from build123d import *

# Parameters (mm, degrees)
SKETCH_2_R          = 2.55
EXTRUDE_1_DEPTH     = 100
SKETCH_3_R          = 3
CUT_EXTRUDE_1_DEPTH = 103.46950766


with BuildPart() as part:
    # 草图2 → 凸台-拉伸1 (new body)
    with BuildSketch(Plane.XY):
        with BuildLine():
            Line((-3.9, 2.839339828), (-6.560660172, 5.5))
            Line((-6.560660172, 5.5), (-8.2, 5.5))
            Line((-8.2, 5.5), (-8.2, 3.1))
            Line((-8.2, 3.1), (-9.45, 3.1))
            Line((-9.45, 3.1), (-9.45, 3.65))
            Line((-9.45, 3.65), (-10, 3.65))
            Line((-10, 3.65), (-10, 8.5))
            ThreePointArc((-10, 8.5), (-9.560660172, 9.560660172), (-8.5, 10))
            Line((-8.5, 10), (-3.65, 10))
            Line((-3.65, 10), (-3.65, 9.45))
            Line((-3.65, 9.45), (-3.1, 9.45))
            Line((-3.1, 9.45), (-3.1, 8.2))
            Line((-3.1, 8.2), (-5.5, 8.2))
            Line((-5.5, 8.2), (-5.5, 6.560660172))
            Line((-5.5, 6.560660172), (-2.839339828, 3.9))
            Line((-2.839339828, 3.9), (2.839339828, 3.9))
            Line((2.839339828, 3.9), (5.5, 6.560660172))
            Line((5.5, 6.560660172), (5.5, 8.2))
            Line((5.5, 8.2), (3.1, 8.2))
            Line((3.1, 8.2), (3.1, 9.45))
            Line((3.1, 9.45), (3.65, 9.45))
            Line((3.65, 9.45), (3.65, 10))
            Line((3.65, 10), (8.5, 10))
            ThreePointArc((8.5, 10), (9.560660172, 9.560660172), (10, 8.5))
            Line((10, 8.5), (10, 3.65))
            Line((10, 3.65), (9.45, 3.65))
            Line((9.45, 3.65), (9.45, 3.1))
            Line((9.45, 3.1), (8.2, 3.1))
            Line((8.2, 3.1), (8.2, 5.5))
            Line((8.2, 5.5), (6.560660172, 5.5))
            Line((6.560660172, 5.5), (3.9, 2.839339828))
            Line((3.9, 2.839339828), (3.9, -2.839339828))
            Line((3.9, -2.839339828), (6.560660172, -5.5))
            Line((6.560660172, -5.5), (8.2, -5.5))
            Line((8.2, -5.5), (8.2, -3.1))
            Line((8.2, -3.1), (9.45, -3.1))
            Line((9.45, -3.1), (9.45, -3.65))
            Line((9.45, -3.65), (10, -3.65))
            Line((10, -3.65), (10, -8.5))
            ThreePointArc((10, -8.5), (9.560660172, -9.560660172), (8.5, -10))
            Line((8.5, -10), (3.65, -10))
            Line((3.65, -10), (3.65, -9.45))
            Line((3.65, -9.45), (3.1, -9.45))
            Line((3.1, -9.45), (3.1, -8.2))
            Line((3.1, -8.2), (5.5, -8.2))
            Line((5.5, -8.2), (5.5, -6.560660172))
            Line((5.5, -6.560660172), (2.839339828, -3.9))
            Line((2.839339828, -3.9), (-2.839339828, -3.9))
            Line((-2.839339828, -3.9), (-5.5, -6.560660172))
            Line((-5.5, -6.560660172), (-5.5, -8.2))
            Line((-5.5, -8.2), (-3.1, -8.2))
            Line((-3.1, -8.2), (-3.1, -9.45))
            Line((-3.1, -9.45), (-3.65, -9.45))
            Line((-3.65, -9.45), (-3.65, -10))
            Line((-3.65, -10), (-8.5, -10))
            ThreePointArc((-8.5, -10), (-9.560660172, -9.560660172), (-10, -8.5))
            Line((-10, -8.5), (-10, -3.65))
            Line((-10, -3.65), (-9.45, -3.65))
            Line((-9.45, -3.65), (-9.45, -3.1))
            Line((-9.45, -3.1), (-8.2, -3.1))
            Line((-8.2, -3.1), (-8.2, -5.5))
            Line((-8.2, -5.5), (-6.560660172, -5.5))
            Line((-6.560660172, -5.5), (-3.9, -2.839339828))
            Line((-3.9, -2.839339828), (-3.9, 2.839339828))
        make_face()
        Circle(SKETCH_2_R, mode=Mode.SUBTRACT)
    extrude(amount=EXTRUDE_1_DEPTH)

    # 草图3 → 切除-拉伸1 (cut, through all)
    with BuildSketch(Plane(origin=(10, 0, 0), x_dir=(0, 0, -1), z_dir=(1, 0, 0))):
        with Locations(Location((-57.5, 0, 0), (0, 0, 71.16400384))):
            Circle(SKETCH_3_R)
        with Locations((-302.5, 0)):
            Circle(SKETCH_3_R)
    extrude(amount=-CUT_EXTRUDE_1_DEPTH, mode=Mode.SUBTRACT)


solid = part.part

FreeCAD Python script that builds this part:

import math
import FreeCAD as App
import Part
import Sketcher

V = App.Vector
Q = App.Units.Quantity

doc = App.newDocument("Part")
body = doc.addObject("PartDesign::Body", "Body")

# Sketch on XY plane
sketch1 = body.newObject("Sketcher::SketchObject", "Sketch")
sketch1.AttachmentSupport = (doc.getObject("XY_Plane"), [""])
sketch1.MapMode = "FlatFace"
sketch1.addGeometry(Part.LineSegment(V(-6.6, 5.5, 0), V(-3.9, 2.8, 0)), False)
sketch1.addGeometry(Part.LineSegment(V(-3.9, 2.8, 0), V(-3.9, -2.8, 0)), False)
sketch1.addGeometry(Part.LineSegment(V(-3.9, -2.8, 0), V(-6.6, -5.5, 0)), False)
sketch1.addGeometry(Part.LineSegment(V(-6.6, -5.5, 0), V(-8.2, -5.5, 0)), False)
sketch1.addGeometry(Part.LineSegment(V(-8.2, -5.5, 0), V(-8.2, -3.1, 0)), False)
sketch1.addGeometry(Part.LineSegment(V(-8.2, -3.1, 0), V(-9.4, -3.1, 0)), False)
sketch1.addGeometry(Part.LineSegment(V(-9.4, -3.1, 0), V(-9.4, -3.6, 0)), False)
sketch1.addGeometry(Part.LineSegment(V(-9.4, -3.6, 0), V(-10, -3.6, 0)), False)
sketch1.addGeometry(Part.LineSegment(V(-10, -3.6, 0), V(-10, -8.5, 0)), False)
sketch1.addGeometry(Part.ArcOfCircle(Part.Circle(V(-8.5, -8.5, 0), V(0, 0, 1), 1.5), math.radians(180), math.radians(270)), False)
sketch1.addGeometry(Part.LineSegment(V(-8.5, -10, 0), V(-3.6, -10, 0)), False)
sketch1.addGeometry(Part.LineSegment(V(-3.6, -10, 0), V(-3.6, -9.4, 0)), False)
sketch1.addGeometry(Part.LineSegment(V(-3.6, -9.4, 0), V(-3.1, -9.4, 0)), False)
sketch1.addGeometry(Part.LineSegment(V(-3.1, -9.4, 0), V(-3.1, -8.2, 0)), False)
sketch1.addGeometry(Part.LineSegment(V(-3.1, -8.2, 0), V(-5.5, -8.2, 0)), False)
sketch1.addGeometry(Part.LineSegment(V(-5.5, -8.2, 0), V(-5.5, -6.6, 0)), False)
sketch1.addGeometry(Part.LineSegment(V(-5.5, -6.6, 0), V(-2.8, -3.9, 0)), False)
sketch1.addGeometry(Part.LineSegment(V(-2.8, -3.9, 0), V(2.8, -3.9, 0)), False)
sketch1.addGeometry(Part.LineSegment(V(2.8, -3.9, 0), V(5.5, -6.6, 0)), False)
sketch1.addGeometry(Part.LineSegment(V(5.5, -6.6, 0), V(5.5, -8.2, 0)), False)
sketch1.addGeometry(Part.LineSegment(V(5.5, -8.2, 0), V(3.1, -8.2, 0)), False)
sketch1.addGeometry(Part.LineSegment(V(3.1, -8.2, 0), V(3.1, -9.4, 0)), False)
sketch1.addGeometry(Part.LineSegment(V(3.1, -9.4, 0), V(3.6, -9.4, 0)), False)
sketch1.addGeometry(Part.LineSegment(V(3.6, -9.4, 0), V(3.6, -10, 0)), False)
sketch1.addGeometry(Part.LineSegment(V(3.6, -10, 0), V(8.5, -10, 0)), False)
sketch1.addGeometry(Part.ArcOfCircle(Part.Circle(V(8.5, -8.5, 0), V(0, 0, 1), 1.5), math.radians(-90), math.radians(0)), False)
sketch1.addGeometry(Part.LineSegment(V(10, -8.5, 0), V(10, -3.6, 0)), False)
sketch1.addGeometry(Part.LineSegment(V(10, -3.6, 0), V(9.4, -3.6, 0)), False)
sketch1.addGeometry(Part.LineSegment(V(9.4, -3.6, 0), V(9.4, -3.1, 0)), False)
sketch1.addGeometry(Part.LineSegment(V(9.4, -3.1, 0), V(8.2, -3.1, 0)), False)
sketch1.addGeometry(Part.LineSegment(V(8.2, -3.1, 0), V(8.2, -5.5, 0)), False)
sketch1.addGeometry(Part.LineSegment(V(8.2, -5.5, 0), V(6.6, -5.5, 0)), False)
sketch1.addGeometry(Part.LineSegment(V(6.6, -5.5, 0), V(3.9, -2.8, 0)), False)
sketch1.addGeometry(Part.LineSegment(V(3.9, -2.8, 0), V(3.9, 2.8, 0)), False)
sketch1.addGeometry(Part.LineSegment(V(3.9, 2.8, 0), V(6.6, 5.5, 0)), False)
sketch1.addGeometry(Part.LineSegment(V(6.6, 5.5, 0), V(8.2, 5.5, 0)), False)
sketch1.addGeometry(Part.LineSegment(V(8.2, 5.5, 0), V(8.2, 3.1, 0)), False)
sketch1.addGeometry(Part.LineSegment(V(8.2, 3.1, 0), V(9.4, 3.1, 0)), False)
sketch1.addGeometry(Part.LineSegment(V(9.4, 3.1, 0), V(9.4, 3.6, 0)), False)
sketch1.addGeometry(Part.LineSegment(V(9.4, 3.6, 0), V(10, 3.6, 0)), False)
sketch1.addGeometry(Part.LineSegment(V(10, 3.6, 0), V(10, 8.5, 0)), False)
sketch1.addGeometry(Part.ArcOfCircle(Part.Circle(V(8.5, 8.5, 0), V(0, 0, 1), 1.5), math.radians(0), math.radians(90)), False)
sketch1.addGeometry(Part.LineSegment(V(8.5, 10, 0), V(3.6, 10, 0)), False)
sketch1.addGeometry(Part.LineSegment(V(3.6, 10, 0), V(3.6, 9.4, 0)), False)
sketch1.addGeometry(Part.LineSegment(V(3.6, 9.4, 0), V(3.1, 9.4, 0)), False)
sketch1.addGeometry(Part.LineSegment(V(3.1, 9.4, 0), V(3.1, 8.2, 0)), False)
sketch1.addGeometry(Part.LineSegment(V(3.1, 8.2, 0), V(5.5, 8.2, 0)), False)
sketch1.addGeometry(Part.LineSegment(V(5.5, 8.2, 0), V(5.5, 6.6, 0)), False)
sketch1.addGeometry(Part.LineSegment(V(5.5, 6.6, 0), V(2.8, 3.9, 0)), False)
sketch1.addGeometry(Part.LineSegment(V(2.8, 3.9, 0), V(-2.8, 3.9, 0)), False)
sketch1.addGeometry(Part.LineSegment(V(-2.8, 3.9, 0), V(-5.5, 6.6, 0)), False)
sketch1.addGeometry(Part.LineSegment(V(-5.5, 6.6, 0), V(-5.5, 8.2, 0)), False)
sketch1.addGeometry(Part.LineSegment(V(-5.5, 8.2, 0), V(-3.1, 8.2, 0)), False)
sketch1.addGeometry(Part.LineSegment(V(-3.1, 8.2, 0), V(-3.1, 9.4, 0)), False)
sketch1.addGeometry(Part.LineSegment(V(-3.1, 9.4, 0), V(-3.6, 9.4, 0)), False)
sketch1.addGeometry(Part.LineSegment(V(-3.6, 9.4, 0), V(-3.6, 10, 0)), False)
sketch1.addGeometry(Part.LineSegment(V(-3.6, 10, 0), V(-8.5, 10, 0)), False)
sketch1.addGeometry(Part.ArcOfCircle(Part.Circle(V(-8.5, 8.5, 0), V(0, 0, 1), 1.5), math.radians(90), math.radians(180)), False)
sketch1.addGeometry(Part.LineSegment(V(-10, 8.5, 0), V(-10, 3.6, 0)), False)
sketch1.addGeometry(Part.LineSegment(V(-10, 3.6, 0), V(-9.4, 3.6, 0)), False)
sketch1.addGeometry(Part.LineSegment(V(-9.4, 3.6, 0), V(-9.4, 3.1, 0)), False)
sketch1.addGeometry(Part.LineSegment(V(-9.4, 3.1, 0), V(-8.2, 3.1, 0)), False)
sketch1.addGeometry(Part.LineSegment(V(-8.2, 3.1, 0), V(-8.2, 5.5, 0)), False)
sketch1.addGeometry(Part.LineSegment(V(-8.2, 5.5, 0), V(-6.6, 5.5, 0)), False)
sketch1.addGeometry(Part.Circle(V(0, 0, 0), V(0, 0, 1), 2.5), False)
sketch1.addConstraint(Sketcher.Constraint("Coincident", 0, 2, 1, 1))
sketch1.addConstraint(Sketcher.Constraint("Coincident", 1, 2, 2, 1))
sketch1.addConstraint(Sketcher.Constraint("Coincident", 2, 2, 3, 1))
sketch1.addConstraint(Sketcher.Constraint("Coincident", 3, 2, 4, 1))
sketch1.addConstraint(Sketcher.Constraint("Coincident", 4, 2, 5, 1))
sketch1.addConstraint(Sketcher.Constraint("Coincident", 5, 2, 6, 1))
sketch1.addConstraint(Sketcher.Constraint("Coincident", 6, 2, 7, 1))
sketch1.addConstraint(Sketcher.Constraint("Coincident", 7, 2, 8, 1))
sketch1.addConstraint(Sketcher.Constraint("Tangent", 8, 2, 9, 1))
sketch1.addConstraint(Sketcher.Constraint("Tangent", 9, 2, 10, 1))
sketch1.addConstraint(Sketcher.Constraint("Coincident", 10, 2, 11, 1))
sketch1.addConstraint(Sketcher.Constraint("Coincident", 11, 2, 12, 1))
sketch1.addConstraint(Sketcher.Constraint("Coincident", 12, 2, 13, 1))
sketch1.addConstraint(Sketcher.Constraint("Coincident", 13, 2, 14, 1))
sketch1.addConstraint(Sketcher.Constraint("Coincident", 14, 2, 15, 1))
sketch1.addConstraint(Sketcher.Constraint("Coincident", 15, 2, 16, 1))
sketch1.addConstraint(Sketcher.Constraint("Coincident", 16, 2, 17, 1))
sketch1.addConstraint(Sketcher.Constraint("Coincident", 17, 2, 18, 1))
sketch1.addConstraint(Sketcher.Constraint("Coincident", 18, 2, 19, 1))
sketch1.addConstraint(Sketcher.Constraint("Coincident", 19, 2, 20, 1))
sketch1.addConstraint(Sketcher.Constraint("Coincident", 20, 2, 21, 1))
sketch1.addConstraint(Sketcher.Constraint("Coincident", 21, 2, 22, 1))
sketch1.addConstraint(Sketcher.Constraint("Coincident", 22, 2, 23, 1))
sketch1.addConstraint(Sketcher.Constraint("Coincident", 23, 2, 24, 1))
sketch1.addConstraint(Sketcher.Constraint("Tangent", 24, 2, 25, 1))
sketch1.addConstraint(Sketcher.Constraint("Tangent", 25, 2, 26, 1))
sketch1.addConstraint(Sketcher.Constraint("Coincident", 26, 2, 27, 1))
sketch1.addConstraint(Sketcher.Constraint("Coincident", 27, 2, 28, 1))
sketch1.addConstraint(Sketcher.Constraint("Coincident", 28, 2, 29, 1))
sketch1.addConstraint(Sketcher.Constraint("Coincident", 29, 2, 30, 1))
sketch1.addConstraint(Sketcher.Constraint("Coincident", 30, 2, 31, 1))
sketch1.addConstraint(Sketcher.Constraint("Coincident", 31, 2, 32, 1))
sketch1.addConstraint(Sketcher.Constraint("Coincident", 32, 2, 33, 1))
sketch1.addConstraint(Sketcher.Constraint("Coincident", 33, 2, 34, 1))
sketch1.addConstraint(Sketcher.Constraint("Coincident", 34, 2, 35, 1))
sketch1.addConstraint(Sketcher.Constraint("Coincident", 35, 2, 36, 1))
sketch1.addConstraint(Sketcher.Constraint("Coincident", 36, 2, 37, 1))
sketch1.addConstraint(Sketcher.Constraint("Coincident", 37, 2, 38, 1))
sketch1.addConstraint(Sketcher.Constraint("Coincident", 38, 2, 39, 1))
sketch1.addConstraint(Sketcher.Constraint("Coincident", 39, 2, 40, 1))
sketch1.addConstraint(Sketcher.Constraint("Tangent", 40, 2, 41, 1))
sketch1.addConstraint(Sketcher.Constraint("Tangent", 41, 2, 42, 1))
sketch1.addConstraint(Sketcher.Constraint("Coincident", 42, 2, 43, 1))
sketch1.addConstraint(Sketcher.Constraint("Coincident", 43, 2, 44, 1))
sketch1.addConstraint(Sketcher.Constraint("Coincident", 44, 2, 45, 1))
sketch1.addConstraint(Sketcher.Constraint("Coincident", 45, 2, 46, 1))
sketch1.addConstraint(Sketcher.Constraint("Coincident", 46, 2, 47, 1))
sketch1.addConstraint(Sketcher.Constraint("Coincident", 47, 2, 48, 1))
sketch1.addConstraint(Sketcher.Constraint("Coincident", 48, 2, 49, 1))
sketch1.addConstraint(Sketcher.Constraint("Coincident", 49, 2, 50, 1))
sketch1.addConstraint(Sketcher.Constraint("Coincident", 50, 2, 51, 1))
sketch1.addConstraint(Sketcher.Constraint("Coincident", 51, 2, 52, 1))
sketch1.addConstraint(Sketcher.Constraint("Coincident", 52, 2, 53, 1))
sketch1.addConstraint(Sketcher.Constraint("Coincident", 53, 2, 54, 1))
sketch1.addConstraint(Sketcher.Constraint("Coincident", 54, 2, 55, 1))
sketch1.addConstraint(Sketcher.Constraint("Coincident", 55, 2, 56, 1))
sketch1.addConstraint(Sketcher.Constraint("Tangent", 56, 2, 57, 1))
sketch1.addConstraint(Sketcher.Constraint("Tangent", 57, 2, 58, 1))
sketch1.addConstraint(Sketcher.Constraint("Coincident", 58, 2, 59, 1))
sketch1.addConstraint(Sketcher.Constraint("Coincident", 59, 2, 60, 1))
sketch1.addConstraint(Sketcher.Constraint("Coincident", 60, 2, 61, 1))
sketch1.addConstraint(Sketcher.Constraint("Coincident", 61, 2, 62, 1))
sketch1.addConstraint(Sketcher.Constraint("Coincident", 62, 2, 63, 1))
sketch1.addConstraint(Sketcher.Constraint("Coincident", 63, 2, 0, 1))
sketch1.addConstraint(Sketcher.Constraint("Vertical", 1))
sketch1.addConstraint(Sketcher.Constraint("Horizontal", 3))
sketch1.addConstraint(Sketcher.Constraint("Vertical", 4))
sketch1.addConstraint(Sketcher.Constraint("Horizontal", 5))
sketch1.addConstraint(Sketcher.Constraint("Vertical", 6))
sketch1.addConstraint(Sketcher.Constraint("Horizontal", 7))
sketch1.addConstraint(Sketcher.Constraint("Vertical", 8))
sketch1.addConstraint(Sketcher.Constraint("Horizontal", 10))
sketch1.addConstraint(Sketcher.Constraint("Vertical", 11))
sketch1.addConstraint(Sketcher.Constraint("Horizontal", 12))
sketch1.addConstraint(Sketcher.Constraint("Vertical", 13))
sketch1.addConstraint(Sketcher.Constraint("Horizontal", 14))
sketch1.addConstraint(Sketcher.Constraint("Vertical", 15))
sketch1.addConstraint(Sketcher.Constraint("Horizontal", 17))
sketch1.addConstraint(Sketcher.Constraint("Vertical", 19))
sketch1.addConstraint(Sketcher.Constraint("Horizontal", 20))
sketch1.addConstraint(Sketcher.Constraint("Vertical", 21))
sketch1.addConstraint(Sketcher.Constraint("Horizontal", 22))
sketch1.addConstraint(Sketcher.Constraint("Vertical", 23))
sketch1.addConstraint(Sketcher.Constraint("Horizontal", 24))
sketch1.addConstraint(Sketcher.Constraint("Vertical", 26))
sketch1.addConstraint(Sketcher.Constraint("Horizontal", 27))
sketch1.addConstraint(Sketcher.Constraint("Vertical", 28))
sketch1.addConstraint(Sketcher.Constraint("Horizontal", 29))
sketch1.addConstraint(Sketcher.Constraint("Vertical", 30))
sketch1.addConstraint(Sketcher.Constraint("Horizontal", 31))
sketch1.addConstraint(Sketcher.Constraint("Vertical", 33))
sketch1.addConstraint(Sketcher.Constraint("Horizontal", 35))
sketch1.addConstraint(Sketcher.Constraint("Vertical", 36))
sketch1.addConstraint(Sketcher.Constraint("Horizontal", 37))
sketch1.addConstraint(Sketcher.Constraint("Vertical", 38))
sketch1.addConstraint(Sketcher.Constraint("Horizontal", 39))
sketch1.addConstraint(Sketcher.Constraint("Vertical", 40))
sketch1.addConstraint(Sketcher.Constraint("Horizontal", 42))
sketch1.addConstraint(Sketcher.Constraint("Vertical", 43))
sketch1.addConstraint(Sketcher.Constraint("Horizontal", 44))
sketch1.addConstraint(Sketcher.Constraint("Vertical", 45))
sketch1.addConstraint(Sketcher.Constraint("Horizontal", 46))
sketch1.addConstraint(Sketcher.Constraint("Vertical", 47))
sketch1.addConstraint(Sketcher.Constraint("Horizontal", 49))
sketch1.addConstraint(Sketcher.Constraint("Vertical", 51))
sketch1.addConstraint(Sketcher.Constraint("Horizontal", 52))
sketch1.addConstraint(Sketcher.Constraint("Vertical", 53))
sketch1.addConstraint(Sketcher.Constraint("Horizontal", 54))
sketch1.addConstraint(Sketcher.Constraint("Vertical", 55))
sketch1.addConstraint(Sketcher.Constraint("Horizontal", 56))
sketch1.addConstraint(Sketcher.Constraint("Vertical", 58))
sketch1.addConstraint(Sketcher.Constraint("Horizontal", 59))
sketch1.addConstraint(Sketcher.Constraint("Vertical", 60))
sketch1.addConstraint(Sketcher.Constraint("Horizontal", 61))
sketch1.addConstraint(Sketcher.Constraint("Vertical", 62))
sketch1.addConstraint(Sketcher.Constraint("Horizontal", 63))
sketch1.addConstraint(Sketcher.Constraint("Coincident", 64, 3, -1, 1))
sketch1.addConstraint(Sketcher.Constraint("Equal", 9, 25))
sketch1.addConstraint(Sketcher.Constraint("Equal", 25, 41))
sketch1.addConstraint(Sketcher.Constraint("Equal", 41, 57))
sketch1.addConstraint(Sketcher.Constraint("Symmetric", 9, 3, 41, 3, -1, 1))
sketch1.addConstraint(Sketcher.Constraint("Symmetric", 25, 3, 57, 3, -1, 1))
sketch1.addConstraint(Sketcher.Constraint("Symmetric", 0, 2, 32, 2, -1, 1))
sketch1.addConstraint(Sketcher.Constraint("Symmetric", 2, 2, 34, 2, -1, 1))
sketch1.addConstraint(Sketcher.Constraint("Symmetric", 4, 2, 36, 2, -1, 1))
sketch1.addConstraint(Sketcher.Constraint("Symmetric", 6, 2, 38, 2, -1, 1))
sketch1.addConstraint(Sketcher.Constraint("Symmetric", 11, 2, 43, 2, -1, 1))
sketch1.addConstraint(Sketcher.Constraint("Symmetric", 13, 2, 45, 2, -1, 1))
sketch1.addConstraint(Sketcher.Constraint("Symmetric", 15, 2, 47, 2, -1, 1))
sketch1.addConstraint(Sketcher.Constraint("Symmetric", 16, 2, 48, 2, -1, 1))
sketch1.addConstraint(Sketcher.Constraint("Symmetric", 18, 2, 50, 2, -1, 1))
sketch1.addConstraint(Sketcher.Constraint("Symmetric", 20, 2, 52, 2, -1, 1))
sketch1.addConstraint(Sketcher.Constraint("Symmetric", 22, 2, 54, 2, -1, 1))
sketch1.addConstraint(Sketcher.Constraint("Symmetric", 27, 2, 59, 2, -1, 1))
sketch1.addConstraint(Sketcher.Constraint("Symmetric", 29, 2, 61, 2, -1, 1))
sketch1.addConstraint(Sketcher.Constraint("Symmetric", 31, 2, 63, 2, -1, 1))
sketch1.addConstraint(Sketcher.Constraint("Symmetric", 9, 3, 25, 3, -2))
sketch1.addConstraint(Sketcher.Constraint("Symmetric", 15, 2, 18, 2, -2))
sketch1.addConstraint(Sketcher.Constraint("Symmetric", 13, 2, 20, 2, -2))
sketch1.addConstraint(Sketcher.Constraint("Symmetric", 11, 2, 22, 2, -2))
sketch1.addConstraint(Sketcher.Constraint("Symmetric", 6, 2, 27, 2, -2))
sketch1.addConstraint(Sketcher.Constraint("Symmetric", 4, 2, 29, 2, -2))
sketch1.addConstraint(Sketcher.Constraint("Symmetric", 2, 2, 31, 2, -2))
sketch1.addConstraint(Sketcher.Constraint("Perpendicular", 0, 2))
sketch1.addConstraint(Sketcher.Constraint("Parallel", 2, 16))
sketch1.addConstraint(Sketcher.Constraint("Perpendicular", 16, 18))
sketch1.addConstraint(Sketcher.Constraint("Perpendicular", 32, 34))
sketch1.addConstraint(Sketcher.Constraint("Perpendicular", 48, 50))
sketch1.addConstraint(Sketcher.Constraint("Horizontal", 1, 2, 32, 2))
sketch1.addConstraint(Sketcher.Constraint("Equal", 7, 12))
sketch1.addConstraint(Sketcher.Constraint("Equal", 49, 1))
sketch1.addConstraint(Sketcher.Constraint("Equal", 52, 4))
sketch1.addConstraint(Sketcher.Constraint("Equal", 59, 6))
sketch1.addConstraint(Sketcher.Constraint("Equal", 56, 8))
sketch1.addConstraint(Sketcher.Constraint("Equal", 6, 11))
sketch1.addConstraint(Sketcher.Constraint("Equal", 61, 13))
sketch1.addConstraint(Sketcher.Constraint("Equal", 63, 15))
sketch1.addConstraint(Sketcher.Constraint("Equal", 2, 16))
sketch1.addConstraint(Sketcher.Constraint("Diameter", 64, Q("5.1 mm")))
sketch1.addConstraint(Sketcher.Constraint("Radius", 9, Q("1.5 mm")))
sketch1.addConstraint(Sketcher.Constraint("DistanceX", 14, 2, 14, 1, Q("2.4 mm")))
sketch1.addConstraint(Sketcher.Constraint("DistanceX", 7, 2, -1, 1, Q("10 mm")))
sketch1.addConstraint(Sketcher.Constraint("DistanceX", 5, 2, 5, 1, Q("1.25 mm")))
sketch1.addConstraint(Sketcher.Constraint("DistanceX", 7, 2, 7, 1, Q("0.55 mm")))
sketch1.addConstraint(Sketcher.Constraint("DistanceX", 10, 1, 10, 2, Q("4.85 mm")))
sketch1.addConstraint(Sketcher.Constraint("DistanceX", 0, 2, -1, 1, Q("3.9 mm")))
sketch1.addConstraint(Sketcher.Constraint("DistanceX", 3, 2, 3, 1, Q("1.63934 mm")))
pad1 = body.newObject("PartDesign::Pad", "Pad")
pad1.Profile = sketch1
pad1.Length = 100

# Sketch on YZ plane
sketch2 = body.newObject("Sketcher::SketchObject", "Sketch001")
sketch2.AttachmentSupport = (doc.getObject("YZ_Plane"), [""])
sketch2.MapMode = "FlatFace"
sketch2.AttachmentOffset = App.Placement(V(0, 0, 10), App.Rotation())
sketch2.addGeometry(Part.Circle(V(0, 57.5, 0), V(0, 0, 1), 3), False)
sketch2.addGeometry(Part.Circle(V(0, 302.5, 0), V(0, 0, 1), 3), False)
sketch2.addConstraint(Sketcher.Constraint("Equal", 0, 1))
sketch2.addConstraint(Sketcher.Constraint("PointOnObject", 0, 3, -2))
sketch2.addConstraint(Sketcher.Constraint("PointOnObject", 1, 3, -2))
sketch2.addConstraint(Sketcher.Constraint("Diameter", 0, Q("6 mm")))
sketch2.addConstraint(Sketcher.Constraint("DistanceY", 0, 3, 1, 3, Q("245 mm")))
sketch2.addConstraint(Sketcher.Constraint("DistanceY", -1, 1, 0, 3, Q("57.5 mm")))
pocket1 = body.newObject("PartDesign::Pocket", "Pocket")
pocket1.Profile = sketch2
pocket1.Type = "ThroughAll"

doc.recompute()
